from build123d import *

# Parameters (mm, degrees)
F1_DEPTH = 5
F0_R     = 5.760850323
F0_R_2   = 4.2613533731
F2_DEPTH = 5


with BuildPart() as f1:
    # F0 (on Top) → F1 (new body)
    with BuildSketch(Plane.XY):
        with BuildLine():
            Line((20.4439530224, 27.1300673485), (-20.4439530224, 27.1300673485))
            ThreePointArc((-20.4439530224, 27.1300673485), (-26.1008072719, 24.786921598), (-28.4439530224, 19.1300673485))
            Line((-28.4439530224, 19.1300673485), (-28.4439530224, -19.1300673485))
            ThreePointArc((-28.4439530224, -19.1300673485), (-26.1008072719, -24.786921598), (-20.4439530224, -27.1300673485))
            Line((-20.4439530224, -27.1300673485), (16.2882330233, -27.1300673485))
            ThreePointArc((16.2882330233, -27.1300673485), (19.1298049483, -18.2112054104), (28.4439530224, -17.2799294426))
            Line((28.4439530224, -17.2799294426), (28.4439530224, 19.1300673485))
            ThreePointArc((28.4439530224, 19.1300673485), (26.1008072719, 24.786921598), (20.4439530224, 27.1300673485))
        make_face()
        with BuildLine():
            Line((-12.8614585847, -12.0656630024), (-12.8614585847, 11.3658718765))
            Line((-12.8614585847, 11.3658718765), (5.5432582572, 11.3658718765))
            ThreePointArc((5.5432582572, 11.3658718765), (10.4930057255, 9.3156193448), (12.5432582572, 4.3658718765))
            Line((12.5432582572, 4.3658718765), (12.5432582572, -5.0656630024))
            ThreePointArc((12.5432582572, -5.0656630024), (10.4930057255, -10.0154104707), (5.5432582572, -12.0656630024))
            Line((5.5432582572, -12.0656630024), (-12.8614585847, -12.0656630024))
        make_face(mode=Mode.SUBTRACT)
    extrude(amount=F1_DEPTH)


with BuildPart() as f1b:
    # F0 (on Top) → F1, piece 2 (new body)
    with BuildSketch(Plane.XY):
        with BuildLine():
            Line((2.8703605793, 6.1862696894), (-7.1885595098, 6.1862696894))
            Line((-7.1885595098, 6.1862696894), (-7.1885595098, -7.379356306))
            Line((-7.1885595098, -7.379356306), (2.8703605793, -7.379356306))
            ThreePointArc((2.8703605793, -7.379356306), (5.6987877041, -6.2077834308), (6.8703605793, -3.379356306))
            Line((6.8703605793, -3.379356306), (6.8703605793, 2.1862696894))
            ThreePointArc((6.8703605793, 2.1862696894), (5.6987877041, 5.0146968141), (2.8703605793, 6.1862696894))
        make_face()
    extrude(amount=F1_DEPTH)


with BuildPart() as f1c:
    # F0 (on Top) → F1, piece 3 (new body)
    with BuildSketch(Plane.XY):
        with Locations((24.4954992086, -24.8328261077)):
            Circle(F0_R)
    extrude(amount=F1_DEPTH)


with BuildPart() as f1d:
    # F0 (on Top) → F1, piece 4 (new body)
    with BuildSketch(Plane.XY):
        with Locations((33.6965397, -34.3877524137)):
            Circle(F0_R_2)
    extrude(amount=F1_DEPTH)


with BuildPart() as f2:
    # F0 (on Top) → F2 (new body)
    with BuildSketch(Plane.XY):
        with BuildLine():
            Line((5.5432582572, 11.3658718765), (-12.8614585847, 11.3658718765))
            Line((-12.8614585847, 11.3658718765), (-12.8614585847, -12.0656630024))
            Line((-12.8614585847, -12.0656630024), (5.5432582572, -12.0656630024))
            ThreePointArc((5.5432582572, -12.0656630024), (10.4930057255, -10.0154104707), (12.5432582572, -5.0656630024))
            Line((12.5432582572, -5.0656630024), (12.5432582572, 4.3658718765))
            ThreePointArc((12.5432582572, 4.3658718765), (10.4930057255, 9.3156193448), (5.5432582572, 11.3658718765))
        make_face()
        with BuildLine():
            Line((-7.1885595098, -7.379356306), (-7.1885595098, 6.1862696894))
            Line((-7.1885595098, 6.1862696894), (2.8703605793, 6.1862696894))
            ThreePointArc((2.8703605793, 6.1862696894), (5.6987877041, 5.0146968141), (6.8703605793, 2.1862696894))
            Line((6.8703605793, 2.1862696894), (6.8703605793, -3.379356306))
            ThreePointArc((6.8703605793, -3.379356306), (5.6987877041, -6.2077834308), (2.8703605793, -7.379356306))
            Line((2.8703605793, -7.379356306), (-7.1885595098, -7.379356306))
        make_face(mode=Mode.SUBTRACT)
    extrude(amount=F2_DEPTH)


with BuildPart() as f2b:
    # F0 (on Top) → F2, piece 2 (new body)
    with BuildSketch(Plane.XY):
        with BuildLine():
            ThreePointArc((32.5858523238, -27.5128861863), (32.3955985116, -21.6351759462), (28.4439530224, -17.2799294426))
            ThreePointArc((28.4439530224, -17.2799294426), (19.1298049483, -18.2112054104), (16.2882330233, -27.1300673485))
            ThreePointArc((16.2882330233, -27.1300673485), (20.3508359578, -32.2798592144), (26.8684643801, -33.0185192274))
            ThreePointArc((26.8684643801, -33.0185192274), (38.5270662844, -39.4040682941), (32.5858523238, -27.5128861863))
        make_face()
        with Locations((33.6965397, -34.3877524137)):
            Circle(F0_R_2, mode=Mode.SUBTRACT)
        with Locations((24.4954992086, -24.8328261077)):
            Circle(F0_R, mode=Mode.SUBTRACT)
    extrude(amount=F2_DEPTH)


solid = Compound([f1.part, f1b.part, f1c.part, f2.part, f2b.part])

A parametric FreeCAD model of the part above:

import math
import FreeCAD as App
import Part
import Sketcher
from FreeCAD import Vector
Q = App.Units.Quantity

doc = App.newDocument("Part")
params = doc.addObject("Spreadsheet::Sheet", "Params")
for row, (alias, value) in enumerate([
    ("sketch1_radius", "8 mm"),
    ("sketch1_radius2", "7 mm"),
    ("pad1_length", "5 mm"),
    ("sketch2_radius", "4 mm"),
    ("pad2_length", "5 mm"),
    ("pad3_length", "5 mm"),
    ("pad4_length", "5 mm"),
    ("sketch5_radius", "7 mm"),
    ("sketch5_radius2", "4 mm"),
    ("pad5_length", "5 mm"),
    ("pad6_length", "5 mm"),
], start=1):
    params.set(f"A{row}", alias)
    params.set(f"B{row}", "=" + value)
    params.setAlias(f"B{row}", alias)

body = doc.addObject("PartDesign::Body", "Body")

# Sketch on XY plane
sketch1 = body.newObject("Sketcher::SketchObject", "Sketch")
sketch1.AttachmentSupport = (doc.getObject("XY_Plane"), [""])
sketch1.MapMode = "FlatFace"
sketch1.addGeometry([
    Part.LineSegment(Vector(20.443953, 27.130067, 0), Vector(-20.443953, 27.130067, 0)),  # 0
    Part.ArcOfCircle(Part.Circle(Vector(-20.443953, 19.130067, 0), Vector(0, 0, 1), 8), math.radians(90), math.radians(180)),  # 1
    Part.LineSegment(Vector(-28.443953, 19.130067, 0), Vector(-28.443953, -19.130067, 0)),  # 2
    Part.ArcOfCircle(Part.Circle(Vector(-20.443953, -19.130067, 0), Vector(0, 0, 1), 8), math.radians(180), math.radians(270)),  # 3
    Part.LineSegment(Vector(-20.443953, -27.130067, 0), Vector(16.288233, -27.130067, 0)),  # 4
    Part.ArcOfCircle(Part.Circle(Vector(24.495499, -24.832826, 0), Vector(0, 0, 1), 8.522707), math.radians(62.400626), math.radians(195.637111)),  # 5
    Part.LineSegment(Vector(28.443953, -17.279929, 0), Vector(28.443953, 19.130067, 0)),  # 6
    Part.ArcOfCircle(Part.Circle(Vector(20.443953, 19.130067, 0), Vector(0, 0, 1), 8), math.radians(0), math.radians(90)),  # 7
    Part.LineSegment(Vector(5.543258, -12.065663, 0), Vector(-12.861459, -12.065663, 0)),  # 8
    Part.LineSegment(Vector(-12.861459, -12.065663, 0), Vector(-12.861459, 11.365872, 0)),  # 9
    Part.LineSegment(Vector(-12.861459, 11.365872, 0), Vector(5.543258, 11.365872, 0)),  # 10
    Part.ArcOfCircle(Part.Circle(Vector(5.543258, 4.365872, 0), Vector(0, 0, 1), 7), math.radians(0), math.radians(90)),  # 11
    Part.LineSegment(Vector(12.543258, 4.365872, 0), Vector(12.543258, -5.065663, 0)),  # 12
    Part.ArcOfCircle(Part.Circle(Vector(5.543258, -5.065663, 0), Vector(0, 0, 1), 7), math.radians(-90), math.radians(0)),  # 13
], False)
sketch1.addConstraint([
    Sketcher.Constraint("Tangent", 0, 2, 1, 1),
    Sketcher.Constraint("Tangent", 1, 2, 2, 1),
    Sketcher.Constraint("Tangent", 2, 2, 3, 1),
    Sketcher.Constraint("Tangent", 3, 2, 4, 1),
    Sketcher.Constraint("Coincident", 4, 2, 5, 2),
    Sketcher.Constraint("Coincident", 5, 1, 6, 1),
    Sketcher.Constraint("Tangent", 6, 2, 7, 1),
    Sketcher.Constraint("Tangent", 7, 2, 0, 1),
    Sketcher.Constraint("Coincident", 8, 2, 9, 1),
    Sketcher.Constraint("Coincident", 9, 2, 10, 1),
    Sketcher.Constraint("Tangent", 10, 2, 11, 2),
    Sketcher.Constraint("Tangent", 11, 1, 12, 1),
    Sketcher.Constraint("Tangent", 12, 2, 13, 2),
    Sketcher.Constraint("Tangent", 13, 1, 8, 1),
    Sketcher.Constraint("Horizontal", 0),
    Sketcher.Constraint("Vertical", 2),
    Sketcher.Constraint("Horizontal", 4),
    Sketcher.Constraint("Vertical", 6),
    Sketcher.Constraint("Horizontal", 8),
    Sketcher.Constraint("Vertical", 9),
    Sketcher.Constraint("Horizontal", 10),
    Sketcher.Constraint("Vertical", 12),
    Sketcher.Constraint("Equal", 1, 3),
    Sketcher.Constraint("Equal", 3, 7),
    Sketcher.Constraint("Equal", 11, 13),
    Sketcher.Constraint("Symmetric", 3, 3, 7, 3, -1, 1),
    Sketcher.Constraint("Radius", 1, Q("8 mm")),
    Sketcher.Constraint("Radius", 11, Q("7 mm")),
    Sketcher.Constraint("Radius", 5, Q("8.522707 mm")),
    Sketcher.Constraint("DistanceX", -1, 1, 5, 3, Q("24.495499 mm")),
    Sketcher.Constraint("DistanceY", 5, 1, 11, 3, Q("21.645801 mm")),
    Sketcher.Constraint("DistanceX", 0, 2, 0, 1, Q("40.887906 mm")),
    Sketcher.Constraint("DistanceX", 4, 1, 4, 2, Q("36.732186 mm")),
    Sketcher.Constraint("DistanceX", 8, 2, 8, 1, Q("18.404717 mm")),
    Sketcher.Constraint("DistanceY", 2, 2, 2, 1, Q("38.260135 mm")),
    Sketcher.Constraint("DistanceY", 9, 1, 9, 2, Q("23.431535 mm")),
    Sketcher.Constraint("DistanceX", -1, 1, 11, 3, Q("5.543258 mm")),
])
sketch1.setExpression("Constraints[26]", "Params.sketch1_radius")
sketch1.setExpression("Constraints[27]", "Params.sketch1_radius2")
pad1 = body.newObject("PartDesign::Pad", "Pad")
pad1.Profile = sketch1
pad1.setExpression("Length", "Params.pad1_length")
body2 = doc.addObject("PartDesign::Body", "Body001")

# Sketch on XY plane
sketch2 = body2.newObject("Sketcher::SketchObject", "Sketch001")
sketch2.AttachmentSupport = (doc.getObject("XY_Plane001"), [""])
sketch2.MapMode = "FlatFace"
sketch2.addGeometry([
    Part.LineSegment(Vector(2.870361, 6.18627, 0), Vector(-7.18856, 6.18627, 0)),  # 0
    Part.LineSegment(Vector(-7.18856, 6.18627, 0), Vector(-7.18856, -7.379356, 0)),  # 1
    Part.LineSegment(Vector(-7.18856, -7.379356, 0), Vector(2.870361, -7.379356, 0)),  # 2
    Part.ArcOfCircle(Part.Circle(Vector(2.870361, -3.379356, 0), Vector(0, 0, 1), 4), math.radians(-90), math.radians(0)),  # 3
    Part.LineSegment(Vector(6.870361, -3.379356, 0), Vector(6.870361, 2.18627, 0)),  # 4
    Part.ArcOfCircle(Part.Circle(Vector(2.870361, 2.18627, 0), Vector(0, 0, 1), 4), math.radians(0), math.radians(90)),  # 5
], False)
sketch2.addConstraint([
    Sketcher.Constraint("Coincident", 0, 2, 1, 1),
    Sketcher.Constraint("Coincident", 1, 2, 2, 1),
    Sketcher.Constraint("Tangent", 2, 2, 3, 1),
    Sketcher.Constraint("Tangent", 3, 2, 4, 1),
    Sketcher.Constraint("Tangent", 4, 2, 5, 1),
    Sketcher.Constraint("Tangent", 5, 2, 0, 1),
    Sketcher.Constraint("Horizontal", 0),
    Sketcher.Constraint("Vertical", 1),
    Sketcher.Constraint("Horizontal", 2),
    Sketcher.Constraint("Vertical", 4),
    Sketcher.Constraint("Equal", 3, 5),
    Sketcher.Constraint("Radius", 3, Q("4 mm")),
    Sketcher.Constraint("DistanceX", 0, 2, 0, 1, Q("10.05892 mm")),
    Sketcher.Constraint("DistanceY", 1, 2, 1, 1, Q("13.565626 mm")),
    Sketcher.Constraint("DistanceX", -1, 1, 3, 3, Q("2.870361 mm")),
    Sketcher.Constraint("DistanceY", -1, 1, 5, 3, Q("2.18627 mm")),
])
sketch2.setExpression("Constraints[11]", "Params.sketch2_radius")
pad2 = body2.newObject("PartDesign::Pad", "Pad001")
pad2.Profile = sketch2
pad2.setExpression("Length", "Params.pad2_length")
body3 = doc.addObject("PartDesign::Body", "Body002")

# Sketch on XY plane
sketch3 = body3.newObject("Sketcher::SketchObject", "Sketch002")
sketch3.AttachmentSupport = (doc.getObject("XY_Plane002"), [""])
sketch3.MapMode = "FlatFace"
sketch3.addGeometry(Part.Circle(Vector(24.495499, -24.832826, 0), Vector(0, 0, 1), 5.76085), False)
sketch3.addConstraint([
    Sketcher.Constraint("Diameter", 0, Q("11.521701 mm")),
    Sketcher.Constraint("DistanceX", -1, 1, 0, 3, Q("24.495499 mm")),
    Sketcher.Constraint("DistanceY", 0, 3, -1, 1, Q("24.832826 mm")),
])
pad3 = body3.newObject("PartDesign::Pad", "Pad002")
pad3.Profile = sketch3
pad3.setExpression("Length", "Params.pad3_length")
body4 = doc.addObject("PartDesign::Body", "Body003")

# Sketch on XY plane
sketch4 = body4.newObject("Sketcher::SketchObject", "Sketch003")
sketch4.AttachmentSupport = (doc.getObject("XY_Plane003"), [""])
sketch4.MapMode = "FlatFace"
sketch4.addGeometry(Part.Circle(Vector(33.69654, -34.387752, 0), Vector(0, 0, 1), 4.261353), False)
sketch4.addConstraint([
    Sketcher.Constraint("Diameter", 0, Q("8.522707 mm")),
    Sketcher.Constraint("DistanceX", -1, 1, 0, 3, Q("33.69654 mm")),
    Sketcher.Constraint("DistanceY", 0, 3, -1, 1, Q("34.387752 mm")),
])
pad4 = body4.newObject("PartDesign::Pad", "Pad003")
pad4.Profile = sketch4
pad4.setExpression("Length", "Params.pad4_length")
body5 = doc.addObject("PartDesign::Body", "Body004")

# Sketch on XY plane
sketch5 = body5.newObject("Sketcher::SketchObject", "Sketch004")
sketch5.AttachmentSupport = (doc.getObject("XY_Plane004"), [""])
sketch5.MapMode = "FlatFace"
sketch5.addGeometry([
    Part.LineSegment(Vector(5.543258, 11.365872, 0), Vector(-12.861459, 11.365872, 0)),  # 0
    Part.LineSegment(Vector(-12.861459, 11.365872, 0), Vector(-12.861459, -12.065663, 0)),  # 1
    Part.LineSegment(Vector(-12.861459, -12.065663, 0), Vector(5.543258, -12.065663, 0)),  # 2
    Part.ArcOfCircle(Part.Circle(Vector(5.543258, -5.065663, 0), Vector(0, 0, 1), 7), math.radians(-90), math.radians(0)),  # 3
    Part.LineSegment(Vector(12.543258, -5.065663, 0), Vector(12.543258, 4.365872, 0)),  # 4
    Part.ArcOfCircle(Part.Circle(Vector(5.543258, 4.365872, 0), Vector(0, 0, 1), 7), math.radians(0), math.radians(90)),  # 5
    Part.LineSegment(Vector(2.870361, -7.379356, 0), Vector(-7.18856, -7.379356, 0)),  # 6
    Part.LineSegment(Vector(-7.18856, -7.379356, 0), Vector(-7.18856, 6.18627, 0)),  # 7
    Part.LineSegment(Vector(-7.18856, 6.18627, 0), Vector(2.870361, 6.18627, 0)),  # 8
    Part.ArcOfCircle(Part.Circle(Vector(2.870361, 2.18627, 0), Vector(0, 0, 1), 4), math.radians(0), math.radians(90)),  # 9
    Part.LineSegment(Vector(6.870361, 2.18627, 0), Vector(6.870361, -3.379356, 0)),  # 10
    Part.ArcOfCircle(Part.Circle(Vector(2.870361, -3.379356, 0), Vector(0, 0, 1), 4), math.radians(-90), math.radians(0)),  # 11
], False)
sketch5.addConstraint([
    Sketcher.Constraint("Coincident", 0, 2, 1, 1),
    Sketcher.Constraint("Coincident", 1, 2, 2, 1),
    Sketcher.Constraint("Tangent", 2, 2, 3, 1),
    Sketcher.Constraint("Tangent", 3, 2, 4, 1),
    Sketcher.Constraint("Tangent", 4, 2, 5, 1),
    Sketcher.Constraint("Tangent", 5, 2, 0, 1),
    Sketcher.Constraint("Coincident", 6, 2, 7, 1),
    Sketcher.Constraint("Coincident", 7, 2, 8, 1),
    Sketcher.Constraint("Tangent", 8, 2, 9, 2),
    Sketcher.Constraint("Tangent", 9, 1, 10, 1),
    Sketcher.Constraint("Tangent", 10, 2, 11, 2),
    Sketcher.Constraint("Tangent", 11, 1, 6, 1),
    Sketcher.Constraint("Horizontal", 0),
    Sketcher.Constraint("Vertical", 1),
    Sketcher.Constraint("Horizontal", 2),
    Sketcher.Constraint("Vertical", 4),
    Sketcher.Constraint("Horizontal", 6),
    Sketcher.Constraint("Vertical", 7),
    Sketcher.Constraint("Horizontal", 8),
    Sketcher.Constraint("Vertical", 10),
    Sketcher.Constraint("Equal", 3, 5),
    Sketcher.Constraint("Equal", 9, 11),
    Sketcher.Constraint("Radius", 3, Q("7 mm")),
    Sketcher.Constraint("Radius", 9, Q("4 mm")),
    Sketcher.Constraint("DistanceX", 6, 2, 6, 1, Q("10.05892 mm")),
    Sketcher.Constraint("DistanceX", 1, 2, 6, 2, Q("5.672899 mm")),
    Sketcher.Constraint("DistanceX", 0, 2, 0, 1, Q("18.404717 mm")),
    Sketcher.Constraint("DistanceY", 1, 2, 1, 1, Q("23.431535 mm")),
    Sketcher.Constraint("DistanceY", 7, 1, 7, 2, Q("13.565626 mm")),
    Sketcher.Constraint("DistanceX", -1, 1, 3, 3, Q("5.543258 mm")),
    Sketcher.Constraint("DistanceY", -1, 1, 5, 3, Q("4.365872 mm")),
    Sketcher.Constraint("DistanceY", -1, 1, 9, 3, Q("2.18627 mm")),
])
sketch5.setExpression("Constraints[22]", "Params.sketch5_radius")
sketch5.setExpression("Constraints[23]", "Params.sketch5_radius2")
pad5 = body5.newObject("PartDesign::Pad", "Pad004")
pad5.Profile = sketch5
pad5.setExpression("Length", "Params.pad5_length")
body6 = doc.addObject("PartDesign::Body", "Body005")

# Sketch on XY plane
sketch6 = body6.newObject("Sketcher::SketchObject", "Sketch005")
sketch6.AttachmentSupport = (doc.getObject("XY_Plane005"), [""])
sketch6.MapMode = "FlatFace"
sketch6.addGeometry([
    Part.ArcOfCircle(Part.Circle(Vector(24.495499, -24.832826, 0), Vector(0, 0, 1), 8.522707), math.radians(-18.328286), math.radians(62.400626)),  # 0
    Part.ArcOfCircle(Part.Circle(Vector(24.495499, -24.832826, 0), Vector(0, 0, 1), 8.522707), math.radians(62.400626), math.radians(195.637111)),  # 1
    Part.ArcOfCircle(Part.Circle(Vector(24.495499, -24.832826, 0), Vector(0, 0, 1), 8.522707), math.radians(-164.362889), math.radians(-73.833561)),  # 2
    Part.ArcOfCircle(Part.Circle(Vector(33.69654, -34.387752, 0), Vector(0, 0, 1), 6.964008), math.radians(168.660878), math.radians(459.177276)),  # 3
    Part.Circle(Vector(33.69654, -34.387752, 0), Vector(0, 0, 1), 4.261353),  # 4
    Part.Circle(Vector(24.495499, -24.832826, 0), Vector(0, 0, 1), 5.76085),  # 5
], False)
sketch6.addConstraint([
    Sketcher.Constraint("Tangent", 0, 2, 1, 1),
    Sketcher.Constraint("Tangent", 1, 2, 2, 1),
    Sketcher.Constraint("Coincident", 2, 2, 3, 1),
    Sketcher.Constraint("Coincident", 3, 2, 0, 1),
    Sketcher.Constraint("Coincident", 2, 3, 0, 3),
    Sketcher.Constraint("Coincident", 4, 3, 3, 3),
    Sketcher.Constraint("Coincident", 5, 3, 0, 3),
    Sketcher.Constraint("Diameter", 5, Q("11.521701 mm")),
    Sketcher.Constraint("Radius", 3, Q("6.964008 mm")),
    Sketcher.Constraint("Diameter", 4, Q("8.522707 mm")),
    Sketcher.Constraint("Radius", 0, Q("8.522707 mm")),
    Sketcher.Constraint("DistanceX", -1, 1, 0, 3, Q("24.495499 mm")),
    Sketcher.Constraint("DistanceX", -1, 1, 3, 3, Q("33.69654 mm")),
    Sketcher.Constraint("DistanceY", 0, 2, -1, 1, Q("17.279929 mm")),
    Sketcher.Constraint("DistanceY", 2, 2, -1, 1, Q("33.018519 mm")),
    Sketcher.Constraint("DistanceY", 1, 2, 0, 3, Q("2.297241 mm")),
    Sketcher.Constraint("DistanceX", 1, 2, 0, 2, Q("12.15572 mm")),
])
pad6 = body6.newObject("PartDesign::Pad", "Pad005")
pad6.Profile = sketch6
pad6.setExpression("Length", "Params.pad6_length")
body4.Visibility = False

doc.recompute()
